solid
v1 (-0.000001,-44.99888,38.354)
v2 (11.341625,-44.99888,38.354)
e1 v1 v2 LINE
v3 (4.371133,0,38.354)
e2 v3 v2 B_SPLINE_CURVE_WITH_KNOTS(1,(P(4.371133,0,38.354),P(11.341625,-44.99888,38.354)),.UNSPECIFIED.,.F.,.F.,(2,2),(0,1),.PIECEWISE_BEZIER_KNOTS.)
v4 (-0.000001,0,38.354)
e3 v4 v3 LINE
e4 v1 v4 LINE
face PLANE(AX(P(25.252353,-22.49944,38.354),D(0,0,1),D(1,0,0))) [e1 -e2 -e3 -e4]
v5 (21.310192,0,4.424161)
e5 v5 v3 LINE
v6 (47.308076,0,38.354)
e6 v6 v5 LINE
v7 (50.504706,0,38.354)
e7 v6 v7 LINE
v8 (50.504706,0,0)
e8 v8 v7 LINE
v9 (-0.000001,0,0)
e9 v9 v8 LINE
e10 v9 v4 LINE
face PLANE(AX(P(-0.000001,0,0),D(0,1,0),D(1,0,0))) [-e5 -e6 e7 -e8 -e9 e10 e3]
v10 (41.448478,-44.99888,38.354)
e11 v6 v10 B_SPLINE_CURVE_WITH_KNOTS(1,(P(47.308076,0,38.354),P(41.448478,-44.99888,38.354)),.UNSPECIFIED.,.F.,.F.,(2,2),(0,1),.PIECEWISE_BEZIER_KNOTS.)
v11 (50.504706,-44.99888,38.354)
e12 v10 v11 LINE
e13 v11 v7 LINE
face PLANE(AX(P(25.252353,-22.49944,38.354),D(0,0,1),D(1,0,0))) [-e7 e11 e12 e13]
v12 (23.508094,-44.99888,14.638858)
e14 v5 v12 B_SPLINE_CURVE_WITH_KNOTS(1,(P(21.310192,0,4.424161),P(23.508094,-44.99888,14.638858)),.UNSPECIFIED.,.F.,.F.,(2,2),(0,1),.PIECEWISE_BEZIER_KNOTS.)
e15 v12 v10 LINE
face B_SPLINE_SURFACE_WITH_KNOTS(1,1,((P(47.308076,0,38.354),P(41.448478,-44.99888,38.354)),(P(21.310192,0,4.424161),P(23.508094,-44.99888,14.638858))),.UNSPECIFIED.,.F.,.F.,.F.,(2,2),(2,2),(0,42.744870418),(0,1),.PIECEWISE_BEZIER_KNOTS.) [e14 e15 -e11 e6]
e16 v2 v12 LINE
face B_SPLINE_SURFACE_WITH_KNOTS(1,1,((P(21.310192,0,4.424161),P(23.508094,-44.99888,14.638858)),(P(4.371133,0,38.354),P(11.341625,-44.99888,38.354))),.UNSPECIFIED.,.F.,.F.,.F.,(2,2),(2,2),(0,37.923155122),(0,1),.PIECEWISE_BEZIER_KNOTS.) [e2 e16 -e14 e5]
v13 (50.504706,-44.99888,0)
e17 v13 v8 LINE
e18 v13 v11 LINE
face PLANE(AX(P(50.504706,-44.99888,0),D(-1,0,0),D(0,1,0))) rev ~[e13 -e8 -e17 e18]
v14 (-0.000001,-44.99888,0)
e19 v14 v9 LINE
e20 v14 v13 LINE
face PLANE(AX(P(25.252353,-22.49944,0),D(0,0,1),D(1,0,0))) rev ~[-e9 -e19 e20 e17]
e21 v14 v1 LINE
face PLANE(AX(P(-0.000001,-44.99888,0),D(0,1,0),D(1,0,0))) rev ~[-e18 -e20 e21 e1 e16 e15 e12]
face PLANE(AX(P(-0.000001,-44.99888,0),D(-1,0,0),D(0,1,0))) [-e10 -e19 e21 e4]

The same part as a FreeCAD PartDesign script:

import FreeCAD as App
import Part
import Sketcher

V = App.Vector
Q = App.Units.Quantity


def add_polygon(sketch, points):
    """Adds a closed chain of lines whose ends are joined by coincident constraints."""
    first, n = sketch.GeometryCount, len(points)
    for a, b in zip(points, points[1:] + points[:1]):
        sketch.addGeometry(Part.LineSegment(App.Vector(*a, 0), App.Vector(*b, 0)), False)
    for i in range(n):
        sketch.addConstraint(Sketcher.Constraint("Coincident", first + i, 2, first + (i + 1) % n, 1))

doc = App.newDocument("Part")
params = doc.addObject("Spreadsheet::Sheet", "Params")
for row, (alias, value) in enumerate([
    ("pad1_length", "1.51 in"),
], start=1):
    params.set(f"A{row}", alias)
    params.set(f"B{row}", "=" + value)
    params.setAlias(f"B{row}", alias)

body = doc.addObject("PartDesign::Body", "Body")

sketch1 = body.newObject("Sketcher::SketchObject", "Sketch")
sketch1.AttachmentSupport = (doc.getObject("XY_Plane"), [""])
sketch1.MapMode = "FlatFace"
add_polygon(sketch1, [(0, 0), (0, -44.99888), (50.504706, -44.99888), (50.504706, 0)])
sketch1.addConstraint([
    Sketcher.Constraint("Vertical", 0),
    Sketcher.Constraint("Horizontal", 1),
    Sketcher.Constraint("Vertical", 2),
    Sketcher.Constraint("Horizontal", 3),
    Sketcher.Constraint("Coincident", 3, 2, -1, 1),
    Sketcher.Constraint("DistanceY", 0, 2, 0, 1, 44.99888),
    Sketcher.Constraint("DistanceX", 1, 1, 1, 2, 50.504707),
])
pad1 = body.newObject("PartDesign::Pad", "Pad")
pad1.Profile = sketch1
pad1.setExpression("Length", "Params.pad1_length")

sketch2 = body.newObject("Sketcher::SketchObject", "Sketch001")
sketch2.AttachmentSupport = (doc.getObject("XZ_Plane"), [""])
sketch2.MapMode = "FlatFace"
add_polygon(sketch2, [(4.371133, 38.354), (47.308076, 38.354), (21.310192, 4.424161)])
sketch2.addConstraint([
    Sketcher.Constraint("Horizontal", 0),
    Sketcher.Constraint("DistanceY", -1, 1, 0, 2, Q("1.51 in")),
    Sketcher.Constraint("Distance", 1, 42.74487),
    Sketcher.Constraint("DistanceX", 0, 1, 0, 2, 42.936943),
    Sketcher.Constraint("DistanceY", -1, 1, 1, 2, 4.424161),
    Sketcher.Constraint("DistanceX", -1, 1, 0, 2, 47.308076),
])

sketch3 = body.newObject("Sketcher::SketchObject", "Sketch002")
sketch3.AttachmentSupport = (doc.getObject("XZ_Plane"), [""])
sketch3.MapMode = "FlatFace"
sketch3.AttachmentOffset = App.Placement(V(0, 0, 44.99888), App.Rotation())
add_polygon(sketch3, [(41.448478, 38.354), (11.341625, 38.354), (23.508094, 14.638858)])
sketch3.addConstraint([
    Sketcher.Constraint("Horizontal", 0),
    Sketcher.Constraint("DistanceY", -1, 1, 0, 2, Q("1.51 in")),
    Sketcher.Constraint("Distance", 2, 29.736599),
    Sketcher.Constraint("Distance", 1, 26.65391),
    Sketcher.Constraint("DistanceX", 0, 2, 0, 1, 30.106853),
    Sketcher.Constraint("DistanceX", -1, 1, 0, 2, 11.341625),
])

subtractiveloft = body.newObject("PartDesign::SubtractiveLoft", "SubtractiveLoft")
subtractiveloft.Profile = sketch2
subtractiveloft.Sections = [sketch3]

doc.recompute()
